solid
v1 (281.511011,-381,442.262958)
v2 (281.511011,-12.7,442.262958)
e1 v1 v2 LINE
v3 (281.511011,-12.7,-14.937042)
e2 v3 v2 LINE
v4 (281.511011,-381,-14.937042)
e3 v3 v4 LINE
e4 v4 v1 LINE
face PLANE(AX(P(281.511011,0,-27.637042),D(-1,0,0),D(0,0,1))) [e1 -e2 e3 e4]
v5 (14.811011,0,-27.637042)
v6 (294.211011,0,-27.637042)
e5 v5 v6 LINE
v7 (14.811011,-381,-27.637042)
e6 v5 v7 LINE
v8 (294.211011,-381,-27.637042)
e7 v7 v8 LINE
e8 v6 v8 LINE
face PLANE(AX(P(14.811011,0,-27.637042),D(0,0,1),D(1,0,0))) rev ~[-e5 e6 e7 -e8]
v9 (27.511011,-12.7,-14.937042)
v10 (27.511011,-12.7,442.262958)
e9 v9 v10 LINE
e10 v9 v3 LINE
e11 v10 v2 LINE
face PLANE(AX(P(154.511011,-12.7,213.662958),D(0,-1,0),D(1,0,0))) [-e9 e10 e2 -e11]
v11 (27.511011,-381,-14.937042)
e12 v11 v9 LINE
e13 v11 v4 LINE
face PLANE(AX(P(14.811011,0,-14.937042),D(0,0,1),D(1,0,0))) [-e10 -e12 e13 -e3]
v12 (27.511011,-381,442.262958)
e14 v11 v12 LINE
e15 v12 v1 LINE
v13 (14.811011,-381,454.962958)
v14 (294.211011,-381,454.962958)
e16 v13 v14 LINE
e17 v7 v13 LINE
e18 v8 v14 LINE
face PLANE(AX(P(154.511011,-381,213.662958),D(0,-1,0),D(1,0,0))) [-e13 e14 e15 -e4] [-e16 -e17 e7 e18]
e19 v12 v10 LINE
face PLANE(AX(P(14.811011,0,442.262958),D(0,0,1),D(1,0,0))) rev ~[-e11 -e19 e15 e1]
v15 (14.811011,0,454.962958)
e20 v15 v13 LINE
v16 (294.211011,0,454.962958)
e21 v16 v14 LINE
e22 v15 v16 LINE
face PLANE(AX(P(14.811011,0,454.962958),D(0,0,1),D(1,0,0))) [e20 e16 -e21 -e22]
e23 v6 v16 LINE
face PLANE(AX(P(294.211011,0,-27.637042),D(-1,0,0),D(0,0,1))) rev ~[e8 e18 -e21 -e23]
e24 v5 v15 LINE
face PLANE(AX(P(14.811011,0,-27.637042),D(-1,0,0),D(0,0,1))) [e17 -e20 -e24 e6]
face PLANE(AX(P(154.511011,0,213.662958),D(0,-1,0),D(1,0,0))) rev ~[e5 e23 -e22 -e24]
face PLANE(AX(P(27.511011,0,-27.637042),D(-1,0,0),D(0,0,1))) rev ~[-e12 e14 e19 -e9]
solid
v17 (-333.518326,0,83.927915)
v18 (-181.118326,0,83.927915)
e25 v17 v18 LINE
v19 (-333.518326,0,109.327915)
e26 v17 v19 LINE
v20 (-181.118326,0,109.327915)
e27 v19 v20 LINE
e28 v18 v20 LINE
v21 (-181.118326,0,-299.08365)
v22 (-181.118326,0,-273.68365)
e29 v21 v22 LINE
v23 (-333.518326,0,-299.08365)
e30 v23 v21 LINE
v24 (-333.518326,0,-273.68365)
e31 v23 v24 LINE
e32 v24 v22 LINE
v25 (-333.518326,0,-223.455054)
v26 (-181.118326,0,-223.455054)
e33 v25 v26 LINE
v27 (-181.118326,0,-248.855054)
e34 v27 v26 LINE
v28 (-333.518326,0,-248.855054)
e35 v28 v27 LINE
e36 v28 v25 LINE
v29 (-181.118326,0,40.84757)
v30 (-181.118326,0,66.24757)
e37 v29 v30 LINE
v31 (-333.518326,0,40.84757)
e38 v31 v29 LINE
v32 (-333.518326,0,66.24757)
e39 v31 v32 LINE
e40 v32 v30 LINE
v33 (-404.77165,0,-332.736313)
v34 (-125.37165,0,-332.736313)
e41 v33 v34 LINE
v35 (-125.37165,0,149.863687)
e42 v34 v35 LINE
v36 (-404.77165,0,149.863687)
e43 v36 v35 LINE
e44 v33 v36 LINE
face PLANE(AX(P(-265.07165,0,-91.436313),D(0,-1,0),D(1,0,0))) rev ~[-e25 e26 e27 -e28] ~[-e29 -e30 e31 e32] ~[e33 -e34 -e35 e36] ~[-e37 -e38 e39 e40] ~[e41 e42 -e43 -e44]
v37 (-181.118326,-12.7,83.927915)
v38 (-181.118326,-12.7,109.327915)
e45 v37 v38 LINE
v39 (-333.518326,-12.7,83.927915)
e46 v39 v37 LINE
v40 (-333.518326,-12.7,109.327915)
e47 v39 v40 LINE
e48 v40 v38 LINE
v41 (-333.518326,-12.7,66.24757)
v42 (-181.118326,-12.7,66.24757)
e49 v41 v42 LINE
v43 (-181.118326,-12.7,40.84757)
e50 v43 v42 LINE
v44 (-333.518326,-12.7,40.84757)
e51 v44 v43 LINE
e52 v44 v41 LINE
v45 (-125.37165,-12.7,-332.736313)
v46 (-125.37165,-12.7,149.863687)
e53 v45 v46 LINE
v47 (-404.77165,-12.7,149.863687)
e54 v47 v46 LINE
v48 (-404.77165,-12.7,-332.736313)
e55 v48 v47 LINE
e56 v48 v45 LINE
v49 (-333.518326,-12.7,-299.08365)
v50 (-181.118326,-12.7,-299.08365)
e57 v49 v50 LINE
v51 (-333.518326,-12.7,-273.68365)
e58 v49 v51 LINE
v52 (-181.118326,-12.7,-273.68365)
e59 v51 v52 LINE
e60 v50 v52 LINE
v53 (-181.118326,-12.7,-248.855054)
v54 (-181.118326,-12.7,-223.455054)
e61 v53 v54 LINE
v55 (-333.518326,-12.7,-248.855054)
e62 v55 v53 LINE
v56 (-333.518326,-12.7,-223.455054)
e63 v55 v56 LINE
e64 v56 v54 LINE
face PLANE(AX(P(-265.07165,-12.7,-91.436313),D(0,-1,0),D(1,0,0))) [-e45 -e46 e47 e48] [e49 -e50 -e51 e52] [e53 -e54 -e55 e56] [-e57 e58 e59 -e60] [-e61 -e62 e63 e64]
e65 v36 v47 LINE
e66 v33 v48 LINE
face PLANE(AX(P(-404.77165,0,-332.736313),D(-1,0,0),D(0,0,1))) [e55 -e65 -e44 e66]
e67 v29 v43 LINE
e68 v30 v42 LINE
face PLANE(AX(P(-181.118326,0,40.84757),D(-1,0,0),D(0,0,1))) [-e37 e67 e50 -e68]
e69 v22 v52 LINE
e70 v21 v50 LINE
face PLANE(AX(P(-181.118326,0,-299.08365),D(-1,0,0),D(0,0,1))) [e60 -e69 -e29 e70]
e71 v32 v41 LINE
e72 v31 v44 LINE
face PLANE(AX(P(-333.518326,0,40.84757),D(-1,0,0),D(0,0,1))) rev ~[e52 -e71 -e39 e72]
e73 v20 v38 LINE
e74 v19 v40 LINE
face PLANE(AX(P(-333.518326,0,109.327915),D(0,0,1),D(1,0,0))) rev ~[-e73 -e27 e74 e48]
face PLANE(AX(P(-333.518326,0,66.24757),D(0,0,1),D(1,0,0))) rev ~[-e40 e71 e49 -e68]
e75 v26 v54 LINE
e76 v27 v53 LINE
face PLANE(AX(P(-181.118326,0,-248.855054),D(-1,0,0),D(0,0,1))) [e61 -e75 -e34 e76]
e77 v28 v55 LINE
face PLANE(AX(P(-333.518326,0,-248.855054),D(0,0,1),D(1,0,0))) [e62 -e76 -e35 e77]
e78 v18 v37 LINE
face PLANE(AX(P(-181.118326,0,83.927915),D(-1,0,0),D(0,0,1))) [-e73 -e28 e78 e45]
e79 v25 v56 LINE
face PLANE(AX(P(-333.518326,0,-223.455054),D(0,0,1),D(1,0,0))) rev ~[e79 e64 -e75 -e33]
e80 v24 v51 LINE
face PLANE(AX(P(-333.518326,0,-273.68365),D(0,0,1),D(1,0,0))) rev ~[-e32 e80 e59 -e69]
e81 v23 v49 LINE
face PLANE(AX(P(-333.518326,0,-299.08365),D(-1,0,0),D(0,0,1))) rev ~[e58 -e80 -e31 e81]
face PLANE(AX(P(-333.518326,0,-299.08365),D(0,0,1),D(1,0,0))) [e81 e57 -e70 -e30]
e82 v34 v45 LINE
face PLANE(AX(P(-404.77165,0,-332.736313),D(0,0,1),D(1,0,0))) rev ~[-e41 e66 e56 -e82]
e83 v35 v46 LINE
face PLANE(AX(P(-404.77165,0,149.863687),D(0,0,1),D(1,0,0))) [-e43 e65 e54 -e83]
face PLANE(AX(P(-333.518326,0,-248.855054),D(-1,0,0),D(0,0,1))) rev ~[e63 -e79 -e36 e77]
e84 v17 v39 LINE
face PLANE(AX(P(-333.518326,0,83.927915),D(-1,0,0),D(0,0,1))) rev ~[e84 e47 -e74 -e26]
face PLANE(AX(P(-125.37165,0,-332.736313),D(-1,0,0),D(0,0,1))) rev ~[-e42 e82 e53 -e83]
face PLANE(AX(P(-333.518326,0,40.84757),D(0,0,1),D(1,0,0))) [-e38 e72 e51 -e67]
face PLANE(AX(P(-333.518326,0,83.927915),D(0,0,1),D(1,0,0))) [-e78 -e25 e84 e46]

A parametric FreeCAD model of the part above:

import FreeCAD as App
import Part
import Sketcher
Q = App.Units.Quantity


def faces_at(feature, points):
    """Names of the faces that lie closest to the given points."""
    faces = feature.Shape.Faces
    near = lambda p: min(range(len(faces)), key=lambda i: faces[i].distToShape(Part.Vertex(*p))[0])
    return sorted({f"Face{near(p) + 1}" for p in points})


def add_polygon(sketch, points):
    """Adds a closed chain of lines whose ends are joined by coincident constraints."""
    first, n = sketch.GeometryCount, len(points)
    for a, b in zip(points, points[1:] + points[:1]):
        sketch.addGeometry(Part.LineSegment(App.Vector(*a, 0), App.Vector(*b, 0)), False)
    for i in range(n):
        sketch.addConstraint(Sketcher.Constraint("Coincident", first + i, 2, first + (i + 1) % n, 1))

doc = App.newDocument("Part")
body = doc.addObject("PartDesign::Body", "Body")

# Sketch on XZ plane
sketch1 = doc.addObject("Sketcher::SketchObject", "Sketch")
body.addObject(sketch1)
sketch1.AttachmentSupport = (doc.XZ_Plane, [""])
sketch1.MapMode = "FlatFace"
add_polygon(sketch1, [(14.811011, 454.962958), (14.811011, -27.637042), (294.211011, -27.637042), (294.211011, 454.962958)])  # lines 0-3
sketch1.addConstraint([
    Sketcher.Constraint("Vertical", 0),
    Sketcher.Constraint("Horizontal", 1),
    Sketcher.Constraint("Vertical", 2),
    Sketcher.Constraint("Horizontal", 3),
    Sketcher.Constraint("DistanceX", 1, 1, 1, 2, Q("11 in")),
    Sketcher.Constraint("DistanceY", 0, 2, 0, 1, Q("19 in")),
    Sketcher.Constraint("DistanceX", -1, 1, 0, 2, Q("14.811011 mm")),
    Sketcher.Constraint("DistanceY", -1, 1, 2, 2, Q("454.962958 mm")),
])
pad1 = doc.addObject("PartDesign::Pad", "Pad")
body.addObject(pad1)
pad1.Profile = sketch1
pad1.Length = Q("15 in")
doc.recompute()

thickness = doc.addObject("PartDesign::Thickness", "Thickness")
body.addObject(thickness)
thickness.Base = (pad1, faces_at(pad1, [(154.511, -381, 213.663)]))
thickness.Value = Q("0.5 in")
thickness.Reversed = True
thickness.Join = "Arc"
body2 = doc.addObject("PartDesign::Body", "Body001")

# Sketch on XZ plane
sketch2 = doc.addObject("Sketcher::SketchObject", "Sketch001")
body2.addObject(sketch2)
sketch2.AttachmentSupport = (doc.getObject("XZ_Plane001"), [""])
sketch2.MapMode = "FlatFace"
add_polygon(sketch2, [(-404.77165, 149.863687), (-404.77165, -332.736313), (-125.37165, -332.736313), (-125.37165, 149.863687)])  # lines 0-3
add_polygon(sketch2, [(-181.118326, -299.08365), (-333.518326, -299.08365), (-333.518326, -273.68365), (-181.118326, -273.68365)])  # lines 4-7
add_polygon(sketch2, [(-181.118326, -248.855054), (-333.518326, -248.855054), (-333.518326, -223.455054), (-181.118326, -223.455054)])  # lines 8-11
add_polygon(sketch2, [(-181.118326, 40.84757), (-333.518326, 40.84757), (-333.518326, 66.24757), (-181.118326, 66.24757)])  # lines 12-15
add_polygon(sketch2, [(-181.118326, 83.927915), (-333.518326, 83.927915), (-333.518326, 109.327915), (-181.118326, 109.327915)])  # lines 16-19
sketch2.addConstraint([
    Sketcher.Constraint("Vertical", 0),
    Sketcher.Constraint("Horizontal", 1),
    Sketcher.Constraint("Vertical", 2),
    Sketcher.Constraint("Horizontal", 3),
    Sketcher.Constraint("Horizontal", 4),
    Sketcher.Constraint("Vertical", 5),
    Sketcher.Constraint("Horizontal", 6),
    Sketcher.Constraint("Vertical", 7),
    Sketcher.Constraint("Horizontal", 8),
    Sketcher.Constraint("Vertical", 9),
    Sketcher.Constraint("Horizontal", 10),
    Sketcher.Constraint("Vertical", 11),
    Sketcher.Constraint("Horizontal", 12),
    Sketcher.Constraint("Vertical", 13),
    Sketcher.Constraint("Horizontal", 14),
    Sketcher.Constraint("Vertical", 15),
    Sketcher.Constraint("Horizontal", 16),
    Sketcher.Constraint("Vertical", 17),
    Sketcher.Constraint("Horizontal", 18),
    Sketcher.Constraint("Vertical", 19),
    Sketcher.Constraint("Vertical", 5, 2, 8, 2),
    Sketcher.Constraint("Vertical", 7, 2, 10, 2),
    Sketcher.Constraint("Vertical", 9, 2, 12, 2),
    Sketcher.Constraint("Vertical", 11, 2, 14, 2),
    Sketcher.Constraint("Vertical", 13, 2, 16, 2),
    Sketcher.Constraint("Vertical", 15, 2, 18, 2),
    Sketcher.Constraint("Equal", 7, 9),
    Sketcher.Constraint("Equal", 11, 13),
    Sketcher.Constraint("Equal", 15, 17),
    Sketcher.Constraint("DistanceX", 1, 1, 1, 2, Q("11 in")),
    Sketcher.Constraint("DistanceX", 4, 2, 4, 1, Q("6 in")),
    Sketcher.Constraint("DistanceY", 0, 2, 0, 1, Q("19 in")),
    Sketcher.Constraint("DistanceY", 5, 1, 5, 2, Q("1 in")),
    Sketcher.Constraint("DistanceX", 0, 2, -1, 1, Q("404.77165 mm")),
    Sketcher.Constraint("DistanceY", 4, 2, -1, 1, Q("299.08365 mm")),
    Sketcher.Constraint("DistanceY", -1, 1, 12, 2, Q("40.84757 mm")),
    Sketcher.Constraint("DistanceY", 0, 2, 8, 2, Q("83.881259 mm")),
    Sketcher.Constraint("DistanceY", 16, 2, 3, 2, Q("65.935772 mm")),
    Sketcher.Constraint("DistanceY", 0, 2, -1, 1, Q("332.736313 mm")),
    Sketcher.Constraint("DistanceX", 4, 2, -1, 1, Q("333.518326 mm")),
])
pad2 = doc.addObject("PartDesign::Pad", "Pad001")
body2.addObject(pad2)
pad2.Profile = sketch2
pad2.Length = Q("0.5 in")

doc.recompute()
